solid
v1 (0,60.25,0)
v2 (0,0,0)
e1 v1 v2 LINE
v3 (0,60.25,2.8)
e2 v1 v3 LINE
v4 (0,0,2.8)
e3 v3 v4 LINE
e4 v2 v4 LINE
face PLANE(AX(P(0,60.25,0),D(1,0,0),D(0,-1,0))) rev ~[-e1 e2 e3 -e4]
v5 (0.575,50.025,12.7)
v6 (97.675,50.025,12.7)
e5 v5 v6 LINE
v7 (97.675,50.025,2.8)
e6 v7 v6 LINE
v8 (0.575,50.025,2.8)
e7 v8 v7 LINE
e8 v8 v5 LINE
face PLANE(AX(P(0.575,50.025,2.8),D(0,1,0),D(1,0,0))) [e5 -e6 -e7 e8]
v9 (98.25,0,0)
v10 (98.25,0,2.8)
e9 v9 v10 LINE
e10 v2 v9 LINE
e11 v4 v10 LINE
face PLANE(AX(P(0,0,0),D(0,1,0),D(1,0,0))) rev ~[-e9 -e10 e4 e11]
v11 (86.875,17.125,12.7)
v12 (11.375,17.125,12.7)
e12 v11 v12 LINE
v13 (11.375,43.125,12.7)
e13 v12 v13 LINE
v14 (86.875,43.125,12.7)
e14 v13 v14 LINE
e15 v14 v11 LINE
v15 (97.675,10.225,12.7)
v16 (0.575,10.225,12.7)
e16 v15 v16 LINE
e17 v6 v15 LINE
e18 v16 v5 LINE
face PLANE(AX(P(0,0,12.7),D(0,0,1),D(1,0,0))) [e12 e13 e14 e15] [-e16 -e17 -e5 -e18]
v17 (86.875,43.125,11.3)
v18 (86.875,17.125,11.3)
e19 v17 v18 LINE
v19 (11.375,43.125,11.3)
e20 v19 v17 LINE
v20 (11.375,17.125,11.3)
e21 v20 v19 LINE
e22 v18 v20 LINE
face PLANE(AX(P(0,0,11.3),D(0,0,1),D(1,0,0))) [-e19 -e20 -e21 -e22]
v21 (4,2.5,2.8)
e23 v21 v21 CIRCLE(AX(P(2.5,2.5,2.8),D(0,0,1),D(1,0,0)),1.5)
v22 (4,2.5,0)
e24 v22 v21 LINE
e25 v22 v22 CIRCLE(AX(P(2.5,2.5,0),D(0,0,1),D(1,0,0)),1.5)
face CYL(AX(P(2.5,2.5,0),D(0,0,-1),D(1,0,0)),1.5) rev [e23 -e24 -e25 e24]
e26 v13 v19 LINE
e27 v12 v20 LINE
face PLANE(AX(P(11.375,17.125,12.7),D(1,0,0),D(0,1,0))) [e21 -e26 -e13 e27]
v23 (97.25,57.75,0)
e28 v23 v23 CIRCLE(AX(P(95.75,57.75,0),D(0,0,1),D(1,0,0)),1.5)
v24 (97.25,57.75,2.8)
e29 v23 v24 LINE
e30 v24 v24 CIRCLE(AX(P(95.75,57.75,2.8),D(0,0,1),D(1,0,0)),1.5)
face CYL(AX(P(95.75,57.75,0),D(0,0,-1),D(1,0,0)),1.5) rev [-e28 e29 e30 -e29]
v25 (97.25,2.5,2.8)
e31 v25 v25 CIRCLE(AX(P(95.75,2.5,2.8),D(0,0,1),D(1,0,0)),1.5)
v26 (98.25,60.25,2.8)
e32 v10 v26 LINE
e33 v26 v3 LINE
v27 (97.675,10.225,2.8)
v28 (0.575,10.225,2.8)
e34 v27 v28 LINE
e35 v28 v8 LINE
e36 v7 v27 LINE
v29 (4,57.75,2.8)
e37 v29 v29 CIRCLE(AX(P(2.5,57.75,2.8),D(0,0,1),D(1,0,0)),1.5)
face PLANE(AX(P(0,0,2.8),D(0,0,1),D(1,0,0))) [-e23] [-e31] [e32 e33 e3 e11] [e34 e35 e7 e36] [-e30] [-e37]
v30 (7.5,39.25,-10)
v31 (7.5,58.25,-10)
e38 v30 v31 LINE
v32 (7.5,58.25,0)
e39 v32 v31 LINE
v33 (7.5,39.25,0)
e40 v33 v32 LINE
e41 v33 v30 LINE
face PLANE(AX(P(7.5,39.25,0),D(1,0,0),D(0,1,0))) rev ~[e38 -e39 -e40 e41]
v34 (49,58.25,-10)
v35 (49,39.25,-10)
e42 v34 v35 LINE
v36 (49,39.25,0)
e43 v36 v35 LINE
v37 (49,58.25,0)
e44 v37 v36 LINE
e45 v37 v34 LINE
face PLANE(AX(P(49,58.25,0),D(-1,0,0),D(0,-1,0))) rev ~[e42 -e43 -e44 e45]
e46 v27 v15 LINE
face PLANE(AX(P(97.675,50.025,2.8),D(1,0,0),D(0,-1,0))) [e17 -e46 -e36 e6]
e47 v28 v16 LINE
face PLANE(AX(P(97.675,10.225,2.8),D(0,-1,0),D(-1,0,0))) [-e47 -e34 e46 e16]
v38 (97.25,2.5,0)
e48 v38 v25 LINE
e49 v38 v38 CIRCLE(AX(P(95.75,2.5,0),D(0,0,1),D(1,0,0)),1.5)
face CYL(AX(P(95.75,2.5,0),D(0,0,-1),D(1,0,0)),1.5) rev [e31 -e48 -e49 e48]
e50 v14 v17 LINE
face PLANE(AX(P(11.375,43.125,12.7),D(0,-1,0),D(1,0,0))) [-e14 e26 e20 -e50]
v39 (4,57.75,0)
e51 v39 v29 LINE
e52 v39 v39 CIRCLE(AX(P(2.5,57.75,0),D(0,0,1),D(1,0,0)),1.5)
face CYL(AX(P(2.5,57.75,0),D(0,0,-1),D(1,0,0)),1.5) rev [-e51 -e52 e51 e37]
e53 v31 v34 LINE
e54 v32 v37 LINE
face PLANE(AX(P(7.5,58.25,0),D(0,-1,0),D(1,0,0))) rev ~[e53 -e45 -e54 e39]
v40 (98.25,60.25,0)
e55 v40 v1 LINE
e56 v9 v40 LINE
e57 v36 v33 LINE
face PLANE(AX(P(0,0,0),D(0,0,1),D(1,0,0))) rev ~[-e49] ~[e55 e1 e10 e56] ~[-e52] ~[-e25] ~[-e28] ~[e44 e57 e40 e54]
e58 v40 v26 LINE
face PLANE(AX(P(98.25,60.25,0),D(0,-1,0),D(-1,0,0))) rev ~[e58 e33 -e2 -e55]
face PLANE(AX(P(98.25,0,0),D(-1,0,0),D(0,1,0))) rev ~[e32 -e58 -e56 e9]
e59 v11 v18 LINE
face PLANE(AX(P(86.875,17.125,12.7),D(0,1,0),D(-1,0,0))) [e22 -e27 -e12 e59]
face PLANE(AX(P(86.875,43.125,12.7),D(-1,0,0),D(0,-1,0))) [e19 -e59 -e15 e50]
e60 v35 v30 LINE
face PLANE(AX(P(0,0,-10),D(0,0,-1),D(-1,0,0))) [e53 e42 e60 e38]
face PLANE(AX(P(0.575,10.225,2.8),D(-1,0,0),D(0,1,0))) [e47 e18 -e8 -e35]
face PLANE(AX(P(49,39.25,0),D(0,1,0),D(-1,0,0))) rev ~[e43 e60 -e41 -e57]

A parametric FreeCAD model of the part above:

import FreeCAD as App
import Part
import Sketcher
from FreeCAD import Vector

doc = App.newDocument("Part")
body = doc.addObject("PartDesign::Body", "Body")

sketch1 = body.newObject("Sketcher::SketchObject", "Sketch")
sketch1.AttachmentSupport = (doc.getObject("XY_Plane"), [""])
sketch1.MapMode = "FlatFace"
sketch1.addGeometry(Part.LineSegment(Vector(0, 60.2, 0), Vector(0, 0, 0)), False)
sketch1.addGeometry(Part.LineSegment(Vector(0, 0, 0), Vector(98.2, 0, 0)), False)
sketch1.addGeometry(Part.LineSegment(Vector(98.2, 0, 0), Vector(98.2, 60.2, 0)), False)
sketch1.addGeometry(Part.LineSegment(Vector(98.2, 60.2, 0), Vector(0, 60.2, 0)), False)
sketch1.addGeometry(Part.Circle(Vector(2.5, 2.5, 0), Vector(0, 0, 1), 1.5), False)
sketch1.addGeometry(Part.Circle(Vector(95.8, 2.5, 0), Vector(0, 0, 1), 1.5), False)
sketch1.addGeometry(Part.Circle(Vector(2.5, 57.8, 0), Vector(0, 0, 1), 1.5), False)
sketch1.addGeometry(Part.Circle(Vector(95.8, 57.8, 0), Vector(0, 0, 1), 1.5), False)
sketch1.addConstraint(Sketcher.Constraint("Coincident", 0, 2, 1, 1))
sketch1.addConstraint(Sketcher.Constraint("Coincident", 1, 2, 2, 1))
sketch1.addConstraint(Sketcher.Constraint("Coincident", 2, 2, 3, 1))
sketch1.addConstraint(Sketcher.Constraint("Coincident", 3, 2, 0, 1))
sketch1.addConstraint(Sketcher.Constraint("Vertical", 0))
sketch1.addConstraint(Sketcher.Constraint("Horizontal", 1))
sketch1.addConstraint(Sketcher.Constraint("Vertical", 2))
sketch1.addConstraint(Sketcher.Constraint("Horizontal", 3))
sketch1.addConstraint(Sketcher.Constraint("Coincident", 0, 2, -1, 1))
sketch1.addConstraint(Sketcher.Constraint("Equal", 4, 5))
sketch1.addConstraint(Sketcher.Constraint("Equal", 5, 6))
sketch1.addConstraint(Sketcher.Constraint("Equal", 6, 7))
sketch1.addConstraint(Sketcher.Constraint("Horizontal", 4, 3, 5, 3))
sketch1.addConstraint(Sketcher.Constraint("Horizontal", 6, 3, 7, 3))
sketch1.addConstraint(Sketcher.Constraint("Vertical", 4, 3, 6, 3))
sketch1.addConstraint(Sketcher.Constraint("Vertical", 5, 3, 7, 3))
sketch1.addConstraint(Sketcher.Constraint("Diameter", 4, 3.0))
sketch1.addConstraint(Sketcher.Constraint("DistanceX", 1, 1, 1, 2, 98.25))
sketch1.addConstraint(Sketcher.Constraint("DistanceY", 0, 2, 0, 1, 60.25))
sketch1.addConstraint(Sketcher.Constraint("DistanceX", -1, 1, 4, 3, 2.5))
sketch1.addConstraint(Sketcher.Constraint("DistanceY", -1, 1, 4, 3, 2.5))
sketch1.addConstraint(Sketcher.Constraint("DistanceX", 5, 3, 1, 2, 2.5))
sketch1.addConstraint(Sketcher.Constraint("DistanceY", 7, 3, 2, 2, 2.5))
pad1 = body.newObject("PartDesign::Pad", "Pad")
pad1.Profile = sketch1
pad1.Length = 2.8

sketch2 = body.newObject("Sketcher::SketchObject", "Sketch001")
sketch2.AttachmentSupport = (doc.getObject("XY_Plane"), [""])
sketch2.MapMode = "FlatFace"
sketch2.AttachmentOffset = App.Placement(Vector(0, 0, 2.8), App.Rotation())
sketch2.addGeometry(Part.LineSegment(Vector(98, 50, 0), Vector(1, 50, 0)), False)
sketch2.addGeometry(Part.LineSegment(Vector(1, 50, 0), Vector(1, 10, 0)), False)
sketch2.addGeometry(Part.LineSegment(Vector(1, 10, 0), Vector(98, 10, 0)), False)
sketch2.addGeometry(Part.LineSegment(Vector(98, 10, 0), Vector(98, 50, 0)), False)
sketch2.addConstraint(Sketcher.Constraint("Coincident", 0, 2, 1, 1))
sketch2.addConstraint(Sketcher.Constraint("Coincident", 1, 2, 2, 1))
sketch2.addConstraint(Sketcher.Constraint("Coincident", 2, 2, 3, 1))
sketch2.addConstraint(Sketcher.Constraint("Coincident", 3, 2, 0, 1))
sketch2.addConstraint(Sketcher.Constraint("Horizontal", 0))
sketch2.addConstraint(Sketcher.Constraint("Vertical", 1))
sketch2.addConstraint(Sketcher.Constraint("Horizontal", 2))
sketch2.addConstraint(Sketcher.Constraint("Vertical", 3))
sketch2.addConstraint(Sketcher.Constraint("DistanceX", 0, 2, 0, 1, 97.1))
sketch2.addConstraint(Sketcher.Constraint("DistanceY", 1, 2, 1, 1, 39.8))
sketch2.addConstraint(Sketcher.Constraint("DistanceX", -1, 1, 0, 2, 0.575))
sketch2.addConstraint(Sketcher.Constraint("DistanceY", -1, 1, 0, 2, 50.025))
pad2 = body.newObject("PartDesign::Pad", "Pad001")
pad2.Profile = sketch2
pad2.Length = 9.9

sketch3 = body.newObject("Sketcher::SketchObject", "Sketch002")
sketch3.AttachmentSupport = (doc.getObject("XY_Plane"), [""])
sketch3.MapMode = "FlatFace"
sketch3.AttachmentOffset = App.Placement(Vector(0, 0, 12.7), App.Rotation())
sketch3.addGeometry(Part.LineSegment(Vector(87, 43, 0), Vector(11, 43, 0)), False)
sketch3.addGeometry(Part.LineSegment(Vector(11, 43, 0), Vector(11, 17, 0)), False)
sketch3.addGeometry(Part.LineSegment(Vector(11, 17, 0), Vector(87, 17, 0)), False)
sketch3.addGeometry(Part.LineSegment(Vector(87, 17, 0), Vector(87, 43, 0)), False)
sketch3.addConstraint(Sketcher.Constraint("Coincident", 0, 2, 1, 1))
sketch3.addConstraint(Sketcher.Constraint("Coincident", 1, 2, 2, 1))
sketch3.addConstraint(Sketcher.Constraint("Coincident", 2, 2, 3, 1))
sketch3.addConstraint(Sketcher.Constraint("Coincident", 3, 2, 0, 1))
sketch3.addConstraint(Sketcher.Constraint("Horizontal", 0))
sketch3.addConstraint(Sketcher.Constraint("Vertical", 1))
sketch3.addConstraint(Sketcher.Constraint("Horizontal", 2))
sketch3.addConstraint(Sketcher.Constraint("Vertical", 3))
sketch3.addConstraint(Sketcher.Constraint("DistanceY", 1, 2, 1, 1, 26.0))
sketch3.addConstraint(Sketcher.Constraint("DistanceX", 0, 2, 0, 1, 75.5))
sketch3.addConstraint(Sketcher.Constraint("DistanceX", -1, 1, 0, 2, 11.375))
sketch3.addConstraint(Sketcher.Constraint("DistanceY", -1, 1, 0, 2, 43.125))
pocket1 = body.newObject("PartDesign::Pocket", "Pocket")
pocket1.Profile = sketch3
pocket1.Length = 1.4

sketch4 = body.newObject("Sketcher::SketchObject", "Sketch003")
sketch4.AttachmentSupport = (doc.getObject("XY_Plane"), [""])
sketch4.MapMode = "FlatFace"
sketch4.addGeometry(Part.LineSegment(Vector(8, 39, 0), Vector(8, 58, 0)), False)
sketch4.addGeometry(Part.LineSegment(Vector(8, 58, 0), Vector(49, 58, 0)), False)
sketch4.addGeometry(Part.LineSegment(Vector(49, 58, 0), Vector(49, 39, 0)), False)
sketch4.addGeometry(Part.LineSegment(Vector(49, 39, 0), Vector(8, 39, 0)), False)
sketch4.addConstraint(Sketcher.Constraint("Coincident", 0, 2, 1, 1))
sketch4.addConstraint(Sketcher.Constraint("Coincident", 1, 2, 2, 1))
sketch4.addConstraint(Sketcher.Constraint("Coincident", 2, 2, 3, 1))
sketch4.addConstraint(Sketcher.Constraint("Coincident", 3, 2, 0, 1))
sketch4.addConstraint(Sketcher.Constraint("Vertical", 0))
sketch4.addConstraint(Sketcher.Constraint("Horizontal", 1))
sketch4.addConstraint(Sketcher.Constraint("Vertical", 2))
sketch4.addConstraint(Sketcher.Constraint("Horizontal", 3))
sketch4.addConstraint(Sketcher.Constraint("DistanceY", 0, 1, 0, 2, 19.0))
sketch4.addConstraint(Sketcher.Constraint("DistanceX", 1, 1, 1, 2, 41.5))
sketch4.addConstraint(Sketcher.Constraint("DistanceX", -1, 1, 0, 2, 7.5))
sketch4.addConstraint(Sketcher.Constraint("DistanceY", -1, 1, 0, 2, 58.25))
pad3 = body.newObject("PartDesign::Pad", "Pad002")
pad3.Profile = sketch4
pad3.Length = 10
pad3.Reversed = True

doc.recompute()
